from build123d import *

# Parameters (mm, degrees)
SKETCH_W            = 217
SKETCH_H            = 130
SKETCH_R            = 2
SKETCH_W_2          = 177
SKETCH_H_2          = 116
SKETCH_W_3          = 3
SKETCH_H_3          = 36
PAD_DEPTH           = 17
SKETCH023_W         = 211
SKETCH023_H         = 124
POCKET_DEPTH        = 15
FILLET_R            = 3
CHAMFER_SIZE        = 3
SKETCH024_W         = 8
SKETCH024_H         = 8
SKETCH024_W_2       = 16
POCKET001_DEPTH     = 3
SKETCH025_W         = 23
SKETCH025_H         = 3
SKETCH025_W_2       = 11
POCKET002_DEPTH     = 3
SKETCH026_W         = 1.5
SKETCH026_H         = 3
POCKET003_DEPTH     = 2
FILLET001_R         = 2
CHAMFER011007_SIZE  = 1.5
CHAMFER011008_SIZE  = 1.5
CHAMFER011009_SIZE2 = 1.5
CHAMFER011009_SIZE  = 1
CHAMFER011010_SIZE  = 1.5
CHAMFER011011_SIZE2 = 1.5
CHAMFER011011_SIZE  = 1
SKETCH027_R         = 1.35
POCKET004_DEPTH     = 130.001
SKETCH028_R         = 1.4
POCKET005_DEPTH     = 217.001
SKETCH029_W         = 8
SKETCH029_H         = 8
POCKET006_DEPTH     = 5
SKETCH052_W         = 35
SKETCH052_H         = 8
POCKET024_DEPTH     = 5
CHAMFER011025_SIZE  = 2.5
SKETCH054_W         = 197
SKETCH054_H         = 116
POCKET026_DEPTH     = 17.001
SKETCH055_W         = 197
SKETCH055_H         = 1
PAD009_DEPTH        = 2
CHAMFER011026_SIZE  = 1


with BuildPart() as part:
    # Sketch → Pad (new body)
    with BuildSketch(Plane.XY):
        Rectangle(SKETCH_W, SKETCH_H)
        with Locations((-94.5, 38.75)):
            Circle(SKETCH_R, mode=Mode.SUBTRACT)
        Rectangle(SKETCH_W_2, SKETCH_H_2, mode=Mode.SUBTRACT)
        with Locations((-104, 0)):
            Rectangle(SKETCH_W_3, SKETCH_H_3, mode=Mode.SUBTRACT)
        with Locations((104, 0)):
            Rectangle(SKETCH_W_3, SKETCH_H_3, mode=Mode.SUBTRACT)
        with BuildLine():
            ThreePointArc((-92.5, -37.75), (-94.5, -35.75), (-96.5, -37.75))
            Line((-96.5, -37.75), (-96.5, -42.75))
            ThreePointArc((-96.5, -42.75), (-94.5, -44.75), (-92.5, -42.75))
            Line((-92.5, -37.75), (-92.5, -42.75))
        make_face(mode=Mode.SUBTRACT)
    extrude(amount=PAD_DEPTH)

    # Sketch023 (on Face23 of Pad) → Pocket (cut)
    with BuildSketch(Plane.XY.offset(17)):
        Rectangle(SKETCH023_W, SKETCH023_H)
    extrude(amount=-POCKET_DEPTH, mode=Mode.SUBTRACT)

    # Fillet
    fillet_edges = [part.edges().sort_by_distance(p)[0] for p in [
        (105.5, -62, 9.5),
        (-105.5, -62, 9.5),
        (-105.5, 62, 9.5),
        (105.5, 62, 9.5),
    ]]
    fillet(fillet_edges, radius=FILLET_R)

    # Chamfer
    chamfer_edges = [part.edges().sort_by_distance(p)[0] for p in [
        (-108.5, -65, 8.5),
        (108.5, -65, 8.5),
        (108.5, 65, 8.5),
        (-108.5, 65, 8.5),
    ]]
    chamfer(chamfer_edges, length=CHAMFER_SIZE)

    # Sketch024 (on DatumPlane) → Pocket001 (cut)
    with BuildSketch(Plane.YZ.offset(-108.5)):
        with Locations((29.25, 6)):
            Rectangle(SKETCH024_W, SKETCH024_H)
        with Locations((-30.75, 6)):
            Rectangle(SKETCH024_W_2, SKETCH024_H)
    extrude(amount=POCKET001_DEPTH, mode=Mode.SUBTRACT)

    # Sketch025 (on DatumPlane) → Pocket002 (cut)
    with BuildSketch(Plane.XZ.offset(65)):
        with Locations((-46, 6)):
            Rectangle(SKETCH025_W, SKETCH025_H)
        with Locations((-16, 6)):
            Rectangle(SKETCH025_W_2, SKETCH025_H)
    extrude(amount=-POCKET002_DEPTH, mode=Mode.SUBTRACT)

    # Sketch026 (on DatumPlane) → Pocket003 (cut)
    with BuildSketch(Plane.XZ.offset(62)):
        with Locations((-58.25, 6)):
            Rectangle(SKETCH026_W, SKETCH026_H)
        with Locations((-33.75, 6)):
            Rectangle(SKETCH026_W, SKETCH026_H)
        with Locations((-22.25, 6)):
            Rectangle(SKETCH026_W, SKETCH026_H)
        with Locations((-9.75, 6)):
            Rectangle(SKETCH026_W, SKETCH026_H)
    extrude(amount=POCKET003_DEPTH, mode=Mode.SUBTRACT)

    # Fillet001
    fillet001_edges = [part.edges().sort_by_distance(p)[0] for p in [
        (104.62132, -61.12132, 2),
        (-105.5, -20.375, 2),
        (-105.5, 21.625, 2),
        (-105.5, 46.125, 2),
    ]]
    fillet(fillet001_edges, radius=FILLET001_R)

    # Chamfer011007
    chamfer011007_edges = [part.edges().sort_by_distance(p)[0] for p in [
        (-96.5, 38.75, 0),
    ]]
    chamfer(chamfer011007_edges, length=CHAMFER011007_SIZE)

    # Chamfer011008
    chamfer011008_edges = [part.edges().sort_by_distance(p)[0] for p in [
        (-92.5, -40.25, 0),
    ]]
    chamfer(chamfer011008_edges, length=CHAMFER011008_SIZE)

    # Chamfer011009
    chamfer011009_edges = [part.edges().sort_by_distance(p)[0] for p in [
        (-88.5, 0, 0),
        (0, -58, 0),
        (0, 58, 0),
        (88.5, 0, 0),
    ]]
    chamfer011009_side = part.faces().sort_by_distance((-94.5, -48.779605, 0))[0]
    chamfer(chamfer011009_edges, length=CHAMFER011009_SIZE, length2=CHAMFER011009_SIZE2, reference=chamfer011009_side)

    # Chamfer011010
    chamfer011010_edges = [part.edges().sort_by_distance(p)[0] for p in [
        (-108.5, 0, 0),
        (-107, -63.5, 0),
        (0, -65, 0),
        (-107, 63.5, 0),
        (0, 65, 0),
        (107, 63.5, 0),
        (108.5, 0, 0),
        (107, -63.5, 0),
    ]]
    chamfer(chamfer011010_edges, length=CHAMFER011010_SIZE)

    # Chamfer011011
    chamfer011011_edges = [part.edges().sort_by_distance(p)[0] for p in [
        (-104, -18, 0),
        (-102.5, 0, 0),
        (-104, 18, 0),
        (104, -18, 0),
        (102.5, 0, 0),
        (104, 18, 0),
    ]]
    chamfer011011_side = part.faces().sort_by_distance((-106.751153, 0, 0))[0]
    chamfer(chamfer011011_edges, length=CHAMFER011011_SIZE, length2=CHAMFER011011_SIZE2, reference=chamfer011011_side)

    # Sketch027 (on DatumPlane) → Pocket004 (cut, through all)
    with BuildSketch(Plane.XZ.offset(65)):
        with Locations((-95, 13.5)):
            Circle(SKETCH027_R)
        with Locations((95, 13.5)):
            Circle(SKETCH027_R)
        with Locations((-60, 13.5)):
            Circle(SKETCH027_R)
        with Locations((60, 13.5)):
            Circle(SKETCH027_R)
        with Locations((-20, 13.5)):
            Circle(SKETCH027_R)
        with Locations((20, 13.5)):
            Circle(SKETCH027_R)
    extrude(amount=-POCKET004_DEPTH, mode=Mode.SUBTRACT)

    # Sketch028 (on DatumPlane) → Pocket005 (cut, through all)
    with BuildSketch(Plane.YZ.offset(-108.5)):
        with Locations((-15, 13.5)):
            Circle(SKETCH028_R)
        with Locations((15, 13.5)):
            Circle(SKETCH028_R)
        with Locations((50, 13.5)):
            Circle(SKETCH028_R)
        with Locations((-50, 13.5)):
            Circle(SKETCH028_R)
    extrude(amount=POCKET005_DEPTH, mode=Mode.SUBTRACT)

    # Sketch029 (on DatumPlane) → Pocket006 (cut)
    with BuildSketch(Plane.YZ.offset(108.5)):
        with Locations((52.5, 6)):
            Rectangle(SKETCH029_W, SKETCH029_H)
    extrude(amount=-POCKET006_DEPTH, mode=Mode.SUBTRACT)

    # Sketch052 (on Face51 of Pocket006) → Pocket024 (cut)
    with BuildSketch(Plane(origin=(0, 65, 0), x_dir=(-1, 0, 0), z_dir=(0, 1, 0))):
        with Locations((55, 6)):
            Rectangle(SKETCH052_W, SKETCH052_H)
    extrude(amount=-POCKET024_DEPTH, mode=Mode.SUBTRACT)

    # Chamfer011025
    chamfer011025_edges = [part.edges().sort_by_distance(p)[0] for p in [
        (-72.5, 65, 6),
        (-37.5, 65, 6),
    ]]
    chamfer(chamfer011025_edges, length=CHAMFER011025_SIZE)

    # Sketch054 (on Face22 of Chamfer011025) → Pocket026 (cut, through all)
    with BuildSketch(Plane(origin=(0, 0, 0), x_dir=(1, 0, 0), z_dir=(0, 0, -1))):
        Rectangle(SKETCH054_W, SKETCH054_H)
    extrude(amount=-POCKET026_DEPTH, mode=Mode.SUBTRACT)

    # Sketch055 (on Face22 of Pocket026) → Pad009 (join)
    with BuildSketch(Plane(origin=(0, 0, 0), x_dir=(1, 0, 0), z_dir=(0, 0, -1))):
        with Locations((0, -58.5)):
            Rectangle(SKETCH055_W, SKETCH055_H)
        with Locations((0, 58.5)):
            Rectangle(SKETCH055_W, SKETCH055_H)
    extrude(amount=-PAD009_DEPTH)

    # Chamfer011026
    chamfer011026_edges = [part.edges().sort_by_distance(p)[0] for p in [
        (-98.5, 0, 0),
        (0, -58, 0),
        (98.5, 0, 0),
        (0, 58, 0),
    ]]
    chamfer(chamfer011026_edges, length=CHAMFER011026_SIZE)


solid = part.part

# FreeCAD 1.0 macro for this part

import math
import FreeCAD as App
import Part
import Sketcher
Q = App.Units.Quantity


def edges_at(feature, points):
    """Names of the edges that pass closest to the given points."""
    edges = feature.Shape.Edges
    near = lambda p: min(range(len(edges)), key=lambda i: edges[i].distToShape(Part.Vertex(*p))[0])
    return sorted({f"Edge{near(p) + 1}" for p in points})

doc = App.newDocument("Part")
body = doc.addObject("PartDesign::Body", "Body")

# Sketch on XY plane
sketch1 = doc.addObject("Sketcher::SketchObject", "Sketch")
body.addObject(sketch1)
sketch1.AttachmentSupport = (doc.XY_Plane, [""])
sketch1.MapMode = "FlatFace"
sketch1.addGeometry([
    Part.LineSegment(App.Vector(-108.5, 65, 0), App.Vector(-108.5, -65, 0)),  # 0
    Part.LineSegment(App.Vector(-108.5, -65, 0), App.Vector(108.5, -65, 0)),  # 1
    Part.LineSegment(App.Vector(108.5, -65, 0), App.Vector(108.5, 65, 0)),  # 2
    Part.LineSegment(App.Vector(108.5, 65, 0), App.Vector(-108.5, 65, 0)),  # 3
    Part.ArcOfCircle(Part.Circle(App.Vector(-94.5, -37.8, 0), App.Vector(0, 0, 1), 2), math.radians(0), math.radians(180)),  # 4
    Part.LineSegment(App.Vector(-92.5, -37.8, 0), App.Vector(-92.5, -42.8, 0)),  # 5
    Part.ArcOfCircle(Part.Circle(App.Vector(-94.5, -42.8, 0), App.Vector(0, 0, 1), 2), math.radians(180), math.radians(360)),  # 6
    Part.LineSegment(App.Vector(-96.5, -42.8, 0), App.Vector(-96.5, -37.8, 0)),  # 7
    Part.LineSegment(App.Vector(-102.5, -18, 0), App.Vector(-105.5, -18, 0)),  # 8
    Part.LineSegment(App.Vector(-105.5, -18, 0), App.Vector(-105.5, 18, 0)),  # 9
    Part.LineSegment(App.Vector(-105.5, 18, 0), App.Vector(-102.5, 18, 0)),  # 10
    Part.LineSegment(App.Vector(-102.5, 18, 0), App.Vector(-102.5, -18, 0)),  # 11
    Part.Circle(App.Vector(-94.5, 38.8, 0), App.Vector(0, 0, 1), 2),  # 12
    Part.LineSegment(App.Vector(88.5, -58, 0), App.Vector(-88.5, -58, 0)),  # 13
    Part.LineSegment(App.Vector(-88.5, -58, 0), App.Vector(-88.5, 58, 0)),  # 14
    Part.LineSegment(App.Vector(-88.5, 58, 0), App.Vector(88.5, 58, 0)),  # 15
    Part.LineSegment(App.Vector(88.5, 58, 0), App.Vector(88.5, -58, 0)),  # 16
    Part.LineSegment(App.Vector(105.5, -18, 0), App.Vector(102.5, -18, 0)),  # 17
    Part.LineSegment(App.Vector(102.5, -18, 0), App.Vector(102.5, 18, 0)),  # 18
    Part.LineSegment(App.Vector(102.5, 18, 0), App.Vector(105.5, 18, 0)),  # 19
    Part.LineSegment(App.Vector(105.5, 18, 0), App.Vector(105.5, -18, 0)),  # 20
], False)
sketch1.addConstraint([
    Sketcher.Constraint("Coincident", 0, 2, 1, 1),
    Sketcher.Constraint("Coincident", 1, 2, 2, 1),
    Sketcher.Constraint("Coincident", 2, 2, 3, 1),
    Sketcher.Constraint("Coincident", 3, 2, 0, 1),
    Sketcher.Constraint("Tangent", 4, 1, 5, 1),
    Sketcher.Constraint("Tangent", 5, 2, 6, 2),
    Sketcher.Constraint("Tangent", 6, 1, 7, 1),
    Sketcher.Constraint("Tangent", 7, 2, 4, 2),
    Sketcher.Constraint("Coincident", 8, 2, 9, 1),
    Sketcher.Constraint("Coincident", 9, 2, 10, 1),
    Sketcher.Constraint("Coincident", 10, 2, 11, 1),
    Sketcher.Constraint("Coincident", 11, 2, 8, 1),
    Sketcher.Constraint("Coincident", 13, 2, 14, 1),
    Sketcher.Constraint("Coincident", 14, 2, 15, 1),
    Sketcher.Constraint("Coincident", 15, 2, 16, 1),
    Sketcher.Constraint("Coincident", 16, 2, 13, 1),
    Sketcher.Constraint("Coincident", 17, 2, 18, 1),
    Sketcher.Constraint("Coincident", 18, 2, 19, 1),
    Sketcher.Constraint("Coincident", 19, 2, 20, 1),
    Sketcher.Constraint("Coincident", 20, 2, 17, 1),
    Sketcher.Constraint("Vertical", 0),
    Sketcher.Constraint("Horizontal", 1),
    Sketcher.Constraint("Vertical", 2),
    Sketcher.Constraint("Horizontal", 3),
    Sketcher.Constraint("Vertical", 5),
    Sketcher.Constraint("Vertical", 7),
    Sketcher.Constraint("Horizontal", 8),
    Sketcher.Constraint("Vertical", 9),
    Sketcher.Constraint("Horizontal", 10),
    Sketcher.Constraint("Vertical", 11),
    Sketcher.Constraint("Horizontal", 13),
    Sketcher.Constraint("Vertical", 14),
    Sketcher.Constraint("Horizontal", 15),
    Sketcher.Constraint("Vertical", 16),
    Sketcher.Constraint("Horizontal", 17),
    Sketcher.Constraint("Vertical", 18),
    Sketcher.Constraint("Horizontal", 19),
    Sketcher.Constraint("Vertical", 20),
    Sketcher.Constraint("Equal", 6, 12),
    Sketcher.Constraint("Symmetric", 0, 2, 2, 2, -1, 1),
    Sketcher.Constraint("Symmetric", 13, 2, 15, 2, -1, 1),
    Sketcher.Constraint("Symmetric", 10, 2, 17, 2, -1, 1),
    Sketcher.Constraint("Symmetric", 8, 2, 19, 2, -1, 1),
    Sketcher.Constraint("Horizontal", 11, 2, 17, 2),
    Sketcher.Constraint("Vertical", 6, 3, 12, 3),
    Sketcher.Constraint("Diameter", 12, Q("4 mm")),
    Sketcher.Constraint("DistanceX", 1, 1, 1, 2, Q("217 mm")),
    Sketcher.Constraint("DistanceX", 8, 2, 8, 1, Q("3 mm")),
    Sketcher.Constraint("DistanceX", 13, 2, 13, 1, Q("177 mm")),
    Sketcher.Constraint("DistanceY", 0, 2, 0, 1, Q("130 mm")),
    Sketcher.Constraint("DistanceY", 5, 2, 5, 1, Q("5 mm")),
    Sketcher.Constraint("DistanceY", 9, 1, 9, 2, Q("36 mm")),
    Sketcher.Constraint("DistanceY", 14, 1, 14, 2, Q("116 mm")),
    Sketcher.Constraint("DistanceX", 0, 2, 6, 3, Q("14 mm")),
    Sketcher.Constraint("DistanceX", 8, 2, 7, 2, Q("9 mm")),
    Sketcher.Constraint("DistanceY", 4, 3, 12, 3, Q("76.5 mm")),
    Sketcher.Constraint("DistanceY", 4, 3, -1, 1, Q("37.75 mm")),
])
pad1 = doc.addObject("PartDesign::Pad", "Pad")
body.addObject(pad1)
pad1.Profile = sketch1
pad1.Length = 17

# Sketch on XY plane
sketch2 = doc.addObject("Sketcher::SketchObject", "Sketch001")
body.addObject(sketch2)
sketch2.AttachmentSupport = (doc.XY_Plane, [""])
sketch2.MapMode = "FlatFace"
sketch2.AttachmentOffset = App.Placement(App.Vector(0, 0, 17), App.Rotation())
sketch2.addGeometry([
    Part.LineSegment(App.Vector(-106, 62, 0), App.Vector(-106, -62, 0)),
    Part.LineSegment(App.Vector(-106, -62, 0), App.Vector(106, -62, 0)),
    Part.LineSegment(App.Vector(106, -62, 0), App.Vector(106, 62, 0)),
    Part.LineSegment(App.Vector(106, 62, 0), App.Vector(-106, 62, 0)),
], False)
sketch2.addConstraint([
    Sketcher.Constraint("Coincident", 0, 2, 1, 1),
    Sketcher.Constraint("Coincident", 1, 2, 2, 1),
    Sketcher.Constraint("Coincident", 2, 2, 3, 1),
    Sketcher.Constraint("Coincident", 3, 2, 0, 1),
    Sketcher.Constraint("Vertical", 0),
    Sketcher.Constraint("Horizontal", 1),
    Sketcher.Constraint("Vertical", 2),
    Sketcher.Constraint("Horizontal", 3),
    Sketcher.Constraint("Symmetric", 0, 2, 2, 2, -1, 1),
    Sketcher.Constraint("DistanceX", 1, 1, 1, 2, Q("211 mm")),
    Sketcher.Constraint("DistanceY", 0, 2, 0, 1, Q("124 mm")),
])
pocket1 = doc.addObject("PartDesign::Pocket", "Pocket")
body.addObject(pocket1)
pocket1.Profile = sketch2
pocket1.Length = 15
doc.recompute()

fillet = doc.addObject("PartDesign::Fillet", "Fillet")
body.addObject(fillet)
fillet.Base = (pocket1, edges_at(pocket1, [
    (105.5, -62, 9.5),
    (-105.5, -62, 9.5),
    (-105.5, 62, 9.5),
    (105.5, 62, 9.5),
]))
fillet.Radius = 3
doc.recompute()

chamfer = doc.addObject("PartDesign::Chamfer", "Chamfer")
body.addObject(chamfer)
chamfer.Base = (fillet, edges_at(fillet, [
    (-108.5, -65, 8.5),
    (108.5, -65, 8.5),
    (108.5, 65, 8.5),
    (-108.5, 65, 8.5),
]))
chamfer.Size = 3

# Sketch on YZ plane
sketch3 = doc.addObject("Sketcher::SketchObject", "Sketch002")
body.addObject(sketch3)
sketch3.AttachmentSupport = (doc.YZ_Plane, [""])
sketch3.MapMode = "FlatFace"
sketch3.AttachmentOffset = App.Placement(App.Vector(0, 0, -108.5), App.Rotation())
sketch3.addGeometry([
    Part.LineSegment(App.Vector(25, 10, 0), App.Vector(25, 2, 0)),  # 0
    Part.LineSegment(App.Vector(25, 2, 0), App.Vector(33, 2, 0)),  # 1
    Part.LineSegment(App.Vector(33, 2, 0), App.Vector(33, 10, 0)),  # 2
    Part.LineSegment(App.Vector(33, 10, 0), App.Vector(25, 10, 0)),  # 3
    Part.LineSegment(App.Vector(-39, 10, 0), App.Vector(-39, 2, 0)),  # 4
    Part.LineSegment(App.Vector(-39, 2, 0), App.Vector(-23, 2, 0)),  # 5
    Part.LineSegment(App.Vector(-23, 2, 0), App.Vector(-23, 10, 0)),  # 6
    Part.LineSegment(App.Vector(-23, 10, 0), App.Vector(-39, 10, 0)),  # 7
], False)
sketch3.addConstraint([
    Sketcher.Constraint("Coincident", 0, 2, 1, 1),
    Sketcher.Constraint("Coincident", 1, 2, 2, 1),
    Sketcher.Constraint("Coincident", 2, 2, 3, 1),
    Sketcher.Constraint("Coincident", 3, 2, 0, 1),
    Sketcher.Constraint("Coincident", 4, 2, 5, 1),
    Sketcher.Constraint("Coincident", 5, 2, 6, 1),
    Sketcher.Constraint("Coincident", 6, 2, 7, 1),
    Sketcher.Constraint("Coincident", 7, 2, 4, 1),
    Sketcher.Constraint("Vertical", 0),
    Sketcher.Constraint("Horizontal", 1),
    Sketcher.Constraint("Vertical", 2),
    Sketcher.Constraint("Horizontal", 3),
    Sketcher.Constraint("Vertical", 4),
    Sketcher.Constraint("Horizontal", 5),
    Sketcher.Constraint("Vertical", 6),
    Sketcher.Constraint("Horizontal", 7),
    Sketcher.Constraint("Horizontal", 1, 2, 4, 2),
    Sketcher.Constraint("Horizontal", 3, 2, 6, 2),
    Sketcher.Constraint("Equal", 3, 0),
    Sketcher.Constraint("DistanceX", 1, 1, 1, 2, Q("8 mm")),
    Sketcher.Constraint("DistanceX", 5, 1, 5, 2, Q("16 mm")),
    Sketcher.Constraint("DistanceY", -1, 1, 0, 2, Q("2 mm")),
    Sketcher.Constraint("DistanceX", 4, 2, 0, 2, Q("64 mm")),
    Sketcher.Constraint("DistanceX", -1, 1, 0, 2, Q("25.25 mm")),
])
pocket2 = doc.addObject("PartDesign::Pocket", "Pocket001")
body.addObject(pocket2)
pocket2.Profile = sketch3
pocket2.Length = 3
pocket2.Reversed = True

# Sketch on XZ plane
sketch4 = doc.addObject("Sketcher::SketchObject", "Sketch003")
body.addObject(sketch4)
sketch4.AttachmentSupport = (doc.XZ_Plane, [""])
sketch4.MapMode = "FlatFace"
sketch4.AttachmentOffset = App.Placement(App.Vector(0, 0, 65), App.Rotation())
sketch4.addGeometry([
    Part.LineSegment(App.Vector(-57.5, 7.5, 0), App.Vector(-57.5, 4.5, 0)),  # 0
    Part.LineSegment(App.Vector(-57.5, 4.5, 0), App.Vector(-34.5, 4.5, 0)),  # 1
    Part.LineSegment(App.Vector(-34.5, 4.5, 0), App.Vector(-34.5, 7.5, 0)),  # 2
    Part.LineSegment(App.Vector(-34.5, 7.5, 0), App.Vector(-57.5, 7.5, 0)),  # 3
    Part.LineSegment(App.Vector(-21.5, 7.5, 0), App.Vector(-21.5, 4.5, 0)),  # 4
    Part.LineSegment(App.Vector(-21.5, 4.5, 0), App.Vector(-10.5, 4.5, 0)),  # 5
    Part.LineSegment(App.Vector(-10.5, 4.5, 0), App.Vector(-10.5, 7.5, 0)),  # 6
    Part.LineSegment(App.Vector(-10.5, 7.5, 0), App.Vector(-21.5, 7.5, 0)),  # 7
], False)
sketch4.addConstraint([
    Sketcher.Constraint("Coincident", 0, 2, 1, 1),
    Sketcher.Constraint("Coincident", 1, 2, 2, 1),
    Sketcher.Constraint("Coincident", 2, 2, 3, 1),
    Sketcher.Constraint("Coincident", 3, 2, 0, 1),
    Sketcher.Constraint("Coincident", 4, 2, 5, 1),
    Sketcher.Constraint("Coincident", 5, 2, 6, 1),
    Sketcher.Constraint("Coincident", 6, 2, 7, 1),
    Sketcher.Constraint("Coincident", 7, 2, 4, 1),
    Sketcher.Constraint("Vertical", 0),
    Sketcher.Constraint("Horizontal", 1),
    Sketcher.Constraint("Vertical", 2),
    Sketcher.Constraint("Horizontal", 3),
    Sketcher.Constraint("Vertical", 4),
    Sketcher.Constraint("Horizontal", 5),
    Sketcher.Constraint("Vertical", 6),
    Sketcher.Constraint("Horizontal", 7),
    Sketcher.Constraint("Horizontal", 1, 2, 4, 2),
    Sketcher.Constraint("Horizontal", 3, 2, 6, 2),
    Sketcher.Constraint("DistanceX", 1, 1, 1, 2, Q("23 mm")),
    Sketcher.Constraint("DistanceX", 5, 1, 5, 2, Q("11 mm")),
    Sketcher.Constraint("DistanceY", 0, 2, 0, 1, Q("3 mm")),
    Sketcher.Constraint("DistanceX", 1, 2, 4, 2, Q("13 mm")),
    Sketcher.Constraint("DistanceX", 0, 2, -1, 1, Q("57.5 mm")),
    Sketcher.Constraint("DistanceY", -1, 1, 0, 2, Q("4.5 mm")),
])
pocket3 = doc.addObject("PartDesign::Pocket", "Pocket002")
body.addObject(pocket3)
pocket3.Profile = sketch4
pocket3.Length = 3

# Sketch on XZ plane
sketch5 = doc.addObject("Sketcher::SketchObject", "Sketch004")
body.addObject(sketch5)
sketch5.AttachmentSupport = (doc.XZ_Plane, [""])
sketch5.MapMode = "FlatFace"
sketch5.AttachmentOffset = App.Placement(App.Vector(0, 0, 62), App.Rotation())
sketch5.addGeometry([
    Part.LineSegment(App.Vector(-59, 7.5, 0), App.Vector(-59, 4.5, 0)),  # 0
    Part.LineSegment(App.Vector(-59, 4.5, 0), App.Vector(-57.5, 4.5, 0)),  # 1
    Part.LineSegment(App.Vector(-57.5, 4.5, 0), App.Vector(-57.5, 7.5, 0)),  # 2
    Part.LineSegment(App.Vector(-57.5, 7.5, 0), App.Vector(-59, 7.5, 0)),  # 3
    Part.LineSegment(App.Vector(-34.5, 7.5, 0), App.Vector(-34.5, 4.5, 0)),  # 4
    Part.LineSegment(App.Vector(-34.5, 4.5, 0), App.Vector(-33, 4.5, 0)),  # 5
    Part.LineSegment(App.Vector(-33, 4.5, 0), App.Vector(-33, 7.5, 0)),  # 6
    Part.LineSegment(App.Vector(-33, 7.5, 0), App.Vector(-34.5, 7.5, 0)),  # 7
    Part.LineSegment(App.Vector(-23, 7.5, 0), App.Vector(-23, 4.5, 0)),  # 8
    Part.LineSegment(App.Vector(-23, 4.5, 0), App.Vector(-21.5, 4.5, 0)),  # 9
    Part.LineSegment(App.Vector(-21.5, 4.5, 0), App.Vector(-21.5, 7.5, 0)),  # 10
    Part.LineSegment(App.Vector(-21.5, 7.5, 0), App.Vector(-23, 7.5, 0)),  # 11
    Part.LineSegment(App.Vector(-10.5, 7.5, 0), App.Vector(-10.5, 4.5, 0)),  # 12
    Part.LineSegment(App.Vector(-10.5, 4.5, 0), App.Vector(-9, 4.5, 0)),  # 13
    Part.LineSegment(App.Vector(-9, 4.5, 0), App.Vector(-9, 7.5, 0)),  # 14
    Part.LineSegment(App.Vector(-9, 7.5, 0), App.Vector(-10.5, 7.5, 0)),  # 15
], False)
sketch5.addConstraint([
    Sketcher.Constraint("Coincident", 0, 2, 1, 1),
    Sketcher.Constraint("Coincident", 1, 2, 2, 1),
    Sketcher.Constraint("Coincident", 2, 2, 3, 1),
    Sketcher.Constraint("Coincident", 3, 2, 0, 1),
    Sketcher.Constraint("Coincident", 4, 2, 5, 1),
    Sketcher.Constraint("Coincident", 5, 2, 6, 1),
    Sketcher.Constraint("Coincident", 6, 2, 7, 1),
    Sketcher.Constraint("Coincident", 7, 2, 4, 1),
    Sketcher.Constraint("Coincident", 8, 2, 9, 1),
    Sketcher.Constraint("Coincident", 9, 2, 10, 1),
    Sketcher.Constraint("Coincident", 10, 2, 11, 1),
    Sketcher.Constraint("Coincident", 11, 2, 8, 1),
    Sketcher.Constraint("Coincident", 12, 2, 13, 1),
    Sketcher.Constraint("Coincident", 13, 2, 14, 1),
    Sketcher.Constraint("Coincident", 14, 2, 15, 1),
    Sketcher.Constraint("Coincident", 15, 2, 12, 1),
    Sketcher.Constraint("Vertical", 0),
    Sketcher.Constraint("Horizontal", 1),
    Sketcher.Constraint("Vertical", 2),
    Sketcher.Constraint("Horizontal", 3),
    Sketcher.Constraint("Vertical", 4),
    Sketcher.Constraint("Horizontal", 5),
    Sketcher.Constraint("Vertical", 6),
    Sketcher.Constraint("Horizontal", 7),
    Sketcher.Constraint("Vertical", 8),
    Sketcher.Constraint("Horizontal", 9),
    Sketcher.Constraint("Vertical", 10),
    Sketcher.Constraint("Horizontal", 11),
    Sketcher.Constraint("Vertical", 12),
    Sketcher.Constraint("Horizontal", 13),
    Sketcher.Constraint("Vertical", 14),
    Sketcher.Constraint("Horizontal", 15),
    Sketcher.Constraint("Horizontal", 1, 2, 4, 2),
    Sketcher.Constraint("Horizontal", 3, 2, 6, 2),
    Sketcher.Constraint("Horizontal", 5, 2, 8, 2),
    Sketcher.Constraint("Horizontal", 7, 2, 10, 2),
    Sketcher.Constraint("Horizontal", 9, 2, 12, 2),
    Sketcher.Constraint("Horizontal", 11, 2, 14, 2),
    Sketcher.Constraint("Equal", 3, 5),
    Sketcher.Constraint("Equal", 7, 9),
    Sketcher.Constraint("Equal", 11, 13),
    Sketcher.Constraint("DistanceY", 0, 2, 0, 1, Q("3 mm")),
    Sketcher.Constraint("DistanceX", 1, 1, 1, 2, Q("1.5 mm")),
    Sketcher.Constraint("DistanceX", 0, 2, -1, 1, Q("59 mm")),
    Sketcher.Constraint("DistanceX", 5, 2, -1, 1, Q("33 mm")),
    Sketcher.Constraint("DistanceX", 8, 2, -1, 1, Q("23 mm")),
    Sketcher.Constraint("DistanceX", 13, 2, -1, 1, Q("9 mm")),
    Sketcher.Constraint("DistanceY", -1, 1, 0, 2, Q("4.5 mm")),
])
pocket4 = doc.addObject("PartDesign::Pocket", "Pocket003")
body.addObject(pocket4)
pocket4.Profile = sketch5
pocket4.Length = 2
pocket4.Reversed = True
doc.recompute()

fillet2 = doc.addObject("PartDesign::Fillet", "Fillet001")
body.addObject(fillet2)
fillet2.Base = (pocket4, edges_at(pocket4, [
    (104.621, -61.121, 2),
    (-105.5, -20.375, 2),
    (-105.5, 21.625, 2),
    (-105.5, 46.125, 2),
]))
fillet2.Radius = 2
doc.recompute()

chamfer2 = doc.addObject("PartDesign::Chamfer", "Chamfer001")
body.addObject(chamfer2)
chamfer2.Base = (fillet2, edges_at(fillet2, [(-96.5, 38.75, 0)]))
chamfer2.Size = 1.5
doc.recompute()

chamfer3 = doc.addObject("PartDesign::Chamfer", "Chamfer002")
body.addObject(chamfer3)
chamfer3.Base = (chamfer2, edges_at(chamfer2, [(-92.5, -40.25, 0)]))
chamfer3.Size = 1.5
doc.recompute()

chamfer4 = doc.addObject("PartDesign::Chamfer", "Chamfer003")
body.addObject(chamfer4)
chamfer4.Base = (chamfer3, edges_at(chamfer3, [
    (-88.5, 0, 0),
    (0, -58, 0),
    (0, 58, 0),
    (88.5, 0, 0),
]))
chamfer4.ChamferType = "Two distances"
chamfer4.Size = 1
chamfer4.Size2 = 1.5
doc.recompute()

chamfer5 = doc.addObject("PartDesign::Chamfer", "Chamfer004")
body.addObject(chamfer5)
chamfer5.Base = (chamfer4, edges_at(chamfer4, [
    (-108.5, 0, 0),
    (-107, -63.5, 0),
    (0, -65, 0),
    (-107, 63.5, 0),
    (0, 65, 0),
    (107, 63.5, 0),
    (108.5, 0, 0),
    (107, -63.5, 0),
]))
chamfer5.Size = 1.5
doc.recompute()

chamfer6 = doc.addObject("PartDesign::Chamfer", "Chamfer005")
body.addObject(chamfer6)
chamfer6.Base = (chamfer5, edges_at(chamfer5, [
    (-104, -18, 0),
    (-102.5, 0, 0),
    (-104, 18, 0),
    (104, -18, 0),
    (102.5, 0, 0),
    (104, 18, 0),
]))
chamfer6.ChamferType = "Two distances"
chamfer6.Size = 1
chamfer6.Size2 = 1.5

# Sketch on XZ plane
sketch6 = doc.addObject("Sketcher::SketchObject", "Sketch005")
body.addObject(sketch6)
sketch6.AttachmentSupport = (doc.XZ_Plane, [""])
sketch6.MapMode = "FlatFace"
sketch6.AttachmentOffset = App.Placement(App.Vector(0, 0, 65), App.Rotation())
sketch6.addGeometry([
    Part.Circle(App.Vector(-95, 13.5, 0), App.Vector(0, 0, 1), 1.4),  # 0
    Part.Circle(App.Vector(95, 13.5, 0), App.Vector(0, 0, 1), 1.4),  # 1
    Part.Circle(App.Vector(-60, 13.5, 0), App.Vector(0, 0, 1), 1.4),  # 2
    Part.Circle(App.Vector(60, 13.5, 0), App.Vector(0, 0, 1), 1.4),  # 3
    Part.Circle(App.Vector(-20, 13.5, 0), App.Vector(0, 0, 1), 1.4),  # 4
    Part.Circle(App.Vector(20, 13.5, 0), App.Vector(0, 0, 1), 1.4),  # 5
], False)
sketch6.addConstraint([
    Sketcher.Constraint("Equal", 0, 1),
    Sketcher.Constraint("Equal", 1, 2),
    Sketcher.Constraint("Equal", 2, 3),
    Sketcher.Constraint("Equal", 3, 4),
    Sketcher.Constraint("Equal", 4, 5),
    Sketcher.Constraint("Symmetric", 0, 3, 1, 3, -2),
    Sketcher.Constraint("Symmetric", 2, 3, 3, 3, -2),
    Sketcher.Constraint("Symmetric", 4, 3, 5, 3, -2),
    Sketcher.Constraint("Horizontal", 1, 3, 2, 3),
    Sketcher.Constraint("Horizontal", 3, 3, 4, 3),
    Sketcher.Constraint("Diameter", 0, Q("2.7 mm")),
    Sketcher.Constraint("DistanceX", 0, 3, -1, 1, Q("95 mm")),
    Sketcher.Constraint("DistanceX", 2, 3, -1, 1, Q("60 mm")),
    Sketcher.Constraint("DistanceX", 4, 3, -1, 1, Q("20 mm")),
    Sketcher.Constraint("DistanceY", -1, 1, 0, 3, Q("13.5 mm")),
])
pocket5 = doc.addObject("PartDesign::Pocket", "Pocket004")
body.addObject(pocket5)
pocket5.Profile = sketch6
pocket5.Type = "ThroughAll"

# Sketch on YZ plane
sketch7 = doc.addObject("Sketcher::SketchObject", "Sketch006")
body.addObject(sketch7)
sketch7.AttachmentSupport = (doc.YZ_Plane, [""])
sketch7.MapMode = "FlatFace"
sketch7.AttachmentOffset = App.Placement(App.Vector(0, 0, -108.5), App.Rotation())
sketch7.addGeometry([
    Part.Circle(App.Vector(-15, 13.5, 0), App.Vector(0, 0, 1), 1.4),
    Part.Circle(App.Vector(15, 13.5, 0), App.Vector(0, 0, 1), 1.4),
    Part.Circle(App.Vector(50, 13.5, 0), App.Vector(0, 0, 1), 1.4),
    Part.Circle(App.Vector(-50, 13.5, 0), App.Vector(0, 0, 1), 1.4),
], False)
sketch7.addConstraint([
    Sketcher.Constraint("Equal", 0, 1),
    Sketcher.Constraint("Equal", 1, 2),
    Sketcher.Constraint("Equal", 2, 3),
    Sketcher.Constraint("Symmetric", 0, 3, 1, 3, -2),
    Sketcher.Constraint("Symmetric", 2, 3, 3, 3, -2),
    Sketcher.Constraint("Horizontal", 1, 3, 2, 3),
    Sketcher.Constraint("Diameter", 0, Q("2.8 mm")),
    Sketcher.Constraint("DistanceX", 0, 3, -1, 1, Q("15 mm")),
    Sketcher.Constraint("DistanceX", -1, 1, 2, 3, Q("50 mm")),
    Sketcher.Constraint("DistanceY", -1, 1, 0, 3, Q("13.5 mm")),
])
pocket6 = doc.addObject("PartDesign::Pocket", "Pocket005")
body.addObject(pocket6)
pocket6.Profile = sketch7
pocket6.Type = "ThroughAll"
pocket6.Reversed = True

# Sketch on YZ plane
sketch8 = doc.addObject("Sketcher::SketchObject", "Sketch007")
body.addObject(sketch8)
sketch8.AttachmentSupport = (doc.YZ_Plane, [""])
sketch8.MapMode = "FlatFace"
sketch8.AttachmentOffset = App.Placement(App.Vector(0, 0, 108.5), App.Rotation())
sketch8.addGeometry([
    Part.LineSegment(App.Vector(48, 10, 0), App.Vector(48, 2, 0)),
    Part.LineSegment(App.Vector(48, 2, 0), App.Vector(56, 2, 0)),
    Part.LineSegment(App.Vector(56, 2, 0), App.Vector(56, 10, 0)),
    Part.LineSegment(App.Vector(56, 10, 0), App.Vector(48, 10, 0)),
], False)
sketch8.addConstraint([
    Sketcher.Constraint("Coincident", 0, 2, 1, 1),
    Sketcher.Constraint("Coincident", 1, 2, 2, 1),
    Sketcher.Constraint("Coincident", 2, 2, 3, 1),
    Sketcher.Constraint("Coincident", 3, 2, 0, 1),
    Sketcher.Constraint("Vertical", 0),
    Sketcher.Constraint("Horizontal", 1),
    Sketcher.Constraint("Vertical", 2),
    Sketcher.Constraint("Horizontal", 3),
    Sketcher.Constraint("Equal", 3, 0),
    Sketcher.Constraint("DistanceX", 1, 1, 1, 2, Q("8 mm")),
    Sketcher.Constraint("DistanceY", -1, 1, 0, 2, Q("2 mm")),
    Sketcher.Constraint("DistanceX", -1, 1, 0, 2, Q("48.5 mm")),
])
pocket7 = doc.addObject("PartDesign::Pocket", "Pocket006")
body.addObject(pocket7)
pocket7.Profile = sketch8
pocket7.Length = 5

# Sketch on XZ plane
sketch9 = doc.addObject("Sketcher::SketchObject", "Sketch008")
body.addObject(sketch9)
sketch9.AttachmentSupport = (doc.XZ_Plane, [""])
sketch9.MapMode = "FlatFace"
sketch9.AttachmentOffset = App.Placement(App.Vector(0, 0, -65), App.Rotation())
sketch9.addGeometry([
    Part.LineSegment(App.Vector(-38, 10, 0), App.Vector(-38, 2, 0)),
    Part.LineSegment(App.Vector(-38, 2, 0), App.Vector(-72, 2, 0)),
    Part.LineSegment(App.Vector(-72, 2, 0), App.Vector(-72, 10, 0)),
    Part.LineSegment(App.Vector(-72, 10, 0), App.Vector(-38, 10, 0)),
], False)
sketch9.addConstraint([
    Sketcher.Constraint("Coincident", 0, 2, 1, 1),
    Sketcher.Constraint("Coincident", 1, 2, 2, 1),
    Sketcher.Constraint("Coincident", 2, 2, 3, 1),
    Sketcher.Constraint("Coincident", 3, 2, 0, 1),
    Sketcher.Constraint("Vertical", 0),
    Sketcher.Constraint("Horizontal", 1),
    Sketcher.Constraint("Vertical", 2),
    Sketcher.Constraint("Horizontal", 3),
    Sketcher.Constraint("DistanceX", 1, 2, 1, 1, Q("35 mm")),
    Sketcher.Constraint("DistanceY", 0, 2, 0, 1, Q("8 mm")),
    Sketcher.Constraint("DistanceY", -1, 1, 0, 2, Q("2 mm")),
    Sketcher.Constraint("DistanceX", 0, 2, -1, 1, Q("37.5 mm")),
])
pocket8 = doc.addObject("PartDesign::Pocket", "Pocket007")
body.addObject(pocket8)
pocket8.Profile = sketch9
pocket8.Length = 5
pocket8.Reversed = True
doc.recompute()

chamfer7 = doc.addObject("PartDesign::Chamfer", "Chamfer006")
body.addObject(chamfer7)
chamfer7.Base = (pocket8, edges_at(pocket8, [(-72.5, 65, 6), (-37.5, 65, 6)]))
chamfer7.Size = 2.5

# Sketch on XY plane
sketch10 = doc.addObject("Sketcher::SketchObject", "Sketch009")
body.addObject(sketch10)
sketch10.AttachmentSupport = (doc.XY_Plane, [""])
sketch10.MapMode = "FlatFace"
sketch10.addGeometry([
    Part.LineSegment(App.Vector(-98, -58, 0), App.Vector(-98, 58, 0)),
    Part.LineSegment(App.Vector(-98, 58, 0), App.Vector(98, 58, 0)),
    Part.LineSegment(App.Vector(98, 58, 0), App.Vector(98, -58, 0)),
    Part.LineSegment(App.Vector(98, -58, 0), App.Vector(-98, -58, 0)),
], False)
sketch10.addConstraint([
    Sketcher.Constraint("Coincident", 0, 2, 1, 1),
    Sketcher.Constraint("Coincident", 1, 2, 2, 1),
    Sketcher.Constraint("Coincident", 2, 2, 3, 1),
    Sketcher.Constraint("Coincident", 3, 2, 0, 1),
    Sketcher.Constraint("Vertical", 0),
    Sketcher.Constraint("Horizontal", 1),
    Sketcher.Constraint("Vertical", 2),
    Sketcher.Constraint("Horizontal", 3),
    Sketcher.Constraint("Symmetric", 0, 2, 2, 2, -1, 1),
    Sketcher.Constraint("DistanceX", 1, 1, 1, 2, Q("197 mm")),
    Sketcher.Constraint("DistanceY", 0, 1, 0, 2, Q("116 mm")),
])
pocket9 = doc.addObject("PartDesign::Pocket", "Pocket008")
body.addObject(pocket9)
pocket9.Profile = sketch10
pocket9.Type = "ThroughAll"
pocket9.Reversed = True

# Sketch on XY plane
sketch11 = doc.addObject("Sketcher::SketchObject", "Sketch010")
body.addObject(sketch11)
sketch11.AttachmentSupport = (doc.XY_Plane, [""])
sketch11.MapMode = "FlatFace"
sketch11.addGeometry([
    Part.LineSegment(App.Vector(-98.5, 58, 0), App.Vector(-98.5, 59, 0)),  # 0
    Part.LineSegment(App.Vector(-98.5, 59, 0), App.Vector(98.5, 59, 0)),  # 1
    Part.LineSegment(App.Vector(98.5, 59, 0), App.Vector(98.5, 58, 0)),  # 2
    Part.LineSegment(App.Vector(98.5, 58, 0), App.Vector(-98.5, 58, 0)),  # 3
    Part.LineSegment(App.Vector(-98.5, -59, 0), App.Vector(-98.5, -58, 0)),  # 4
    Part.LineSegment(App.Vector(-98.5, -58, 0), App.Vector(98.5, -58, 0)),  # 5
    Part.LineSegment(App.Vector(98.5, -58, 0), App.Vector(98.5, -59, 0)),  # 6
    Part.LineSegment(App.Vector(98.5, -59, 0), App.Vector(-98.5, -59, 0)),  # 7
], False)
sketch11.addConstraint([
    Sketcher.Constraint("Coincident", 0, 2, 1, 1),
    Sketcher.Constraint("Coincident", 1, 2, 2, 1),
    Sketcher.Constraint("Coincident", 2, 2, 3, 1),
    Sketcher.Constraint("Coincident", 3, 2, 0, 1),
    Sketcher.Constraint("Coincident", 4, 2, 5, 1),
    Sketcher.Constraint("Coincident", 5, 2, 6, 1),
    Sketcher.Constraint("Coincident", 6, 2, 7, 1),
    Sketcher.Constraint("Coincident", 7, 2, 4, 1),
    Sketcher.Constraint("Vertical", 0),
    Sketcher.Constraint("Horizontal", 1),
    Sketcher.Constraint("Vertical", 2),
    Sketcher.Constraint("Horizontal", 3),
    Sketcher.Constraint("Vertical", 4),
    Sketcher.Constraint("Horizontal", 5),
    Sketcher.Constraint("Vertical", 6),
    Sketcher.Constraint("Horizontal", 7),
    Sketcher.Constraint("Symmetric", 2, 2, 4, 2, -1, 1),
    Sketcher.Constraint("Symmetric", 0, 2, 6, 2, -1, 1),
    Sketcher.Constraint("Vertical", 3, 2, 4, 2),
    Sketcher.Constraint("DistanceX", 1, 1, 1, 2, Q("197 mm")),
    Sketcher.Constraint("DistanceY", 0, 1, 0, 2, Q("1 mm")),
    Sketcher.Constraint("DistanceY", -1, 1, 0, 2, Q("59 mm")),
])
pad2 = doc.addObject("PartDesign::Pad", "Pad001")
body.addObject(pad2)
pad2.Profile = sketch11
pad2.Length = 2
doc.recompute()

chamfer8 = doc.addObject("PartDesign::Chamfer", "Chamfer007")
body.addObject(chamfer8)
chamfer8.Base = (pad2, edges_at(pad2, [
    (-98.5, 0, 0),
    (0, -58, 0),
    (98.5, 0, 0),
    (0, 58, 0),
]))
chamfer8.Size = 1

doc.recompute()
